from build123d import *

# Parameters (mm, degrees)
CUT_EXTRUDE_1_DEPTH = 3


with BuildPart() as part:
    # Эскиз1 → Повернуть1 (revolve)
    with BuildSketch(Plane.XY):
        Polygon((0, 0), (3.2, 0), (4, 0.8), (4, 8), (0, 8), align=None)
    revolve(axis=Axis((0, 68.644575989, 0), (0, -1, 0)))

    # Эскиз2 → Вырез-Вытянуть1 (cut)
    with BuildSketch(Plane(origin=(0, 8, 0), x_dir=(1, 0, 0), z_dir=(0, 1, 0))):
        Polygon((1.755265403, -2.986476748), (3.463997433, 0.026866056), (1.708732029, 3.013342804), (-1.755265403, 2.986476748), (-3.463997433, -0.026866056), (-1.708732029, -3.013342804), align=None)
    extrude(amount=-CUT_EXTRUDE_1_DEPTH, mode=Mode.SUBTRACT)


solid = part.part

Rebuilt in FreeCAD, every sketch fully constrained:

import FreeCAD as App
import Part
import Sketcher
from FreeCAD import Vector
Q = App.Units.Quantity

doc = App.newDocument("Part")
body = doc.addObject("PartDesign::Body", "Body")

sketch1 = body.newObject("Sketcher::SketchObject", "Sketch")
sketch1.AttachmentSupport = (doc.getObject("XY_Plane"), [""])
sketch1.MapMode = "FlatFace"
sketch1.addGeometry(Part.LineSegment(Vector(0, 0, 0), Vector(3.2, 0, 0)), False)
sketch1.addGeometry(Part.LineSegment(Vector(3.2, 0, 0), Vector(4, 0.8, 0)), False)
sketch1.addGeometry(Part.LineSegment(Vector(4, 0.8, 0), Vector(4, 8, 0)), False)
sketch1.addGeometry(Part.LineSegment(Vector(4, 8, 0), Vector(0, 8, 0)), False)
sketch1.addGeometry(Part.LineSegment(Vector(0, 8, 0), Vector(0, 0, 0)), False)
sketch1.addConstraint(Sketcher.Constraint("Coincident", 0, 2, 1, 1))
sketch1.addConstraint(Sketcher.Constraint("Coincident", 1, 2, 2, 1))
sketch1.addConstraint(Sketcher.Constraint("Coincident", 2, 2, 3, 1))
sketch1.addConstraint(Sketcher.Constraint("Coincident", 3, 2, 4, 1))
sketch1.addConstraint(Sketcher.Constraint("Coincident", 4, 2, 0, 1))
sketch1.addConstraint(Sketcher.Constraint("Horizontal", 0))
sketch1.addConstraint(Sketcher.Constraint("Vertical", 2))
sketch1.addConstraint(Sketcher.Constraint("Horizontal", 3))
sketch1.addConstraint(Sketcher.Constraint("Vertical", 4))
sketch1.addConstraint(Sketcher.Constraint("Coincident", 4, 2, -1, 1))
sketch1.addConstraint(Sketcher.Constraint("DistanceX", 3, 2, 3, 1, Q("4 mm")))
sketch1.addConstraint(Sketcher.Constraint("DistanceY", 4, 2, 4, 1, Q("8 mm")))
sketch1.addConstraint(Sketcher.Constraint("Angle", 1, Q("45 deg")))
sketch1.addConstraint(Sketcher.Constraint("DistanceX", 0, 1, 0, 2, Q("3.2 mm")))
revolution = body.newObject("PartDesign::Revolution", "Revolution")
revolution.Profile = sketch1
revolution.ReferenceAxis = (sketch1, ["V_Axis"])
revolution.Angle = 360

sketch2 = body.newObject("Sketcher::SketchObject", "Sketch001")
sketch2.AttachmentSupport = (doc.getObject("XZ_Plane"), [""])
sketch2.MapMode = "FlatFace"
sketch2.AttachmentOffset = App.Placement(Vector(0, 0, -8), App.Rotation())
sketch2.addGeometry(Part.LineSegment(Vector(1.8, 3, 0), Vector(3.5, 0, 0)), False)
sketch2.addGeometry(Part.LineSegment(Vector(3.5, 0, 0), Vector(1.7, -3, 0)), False)
sketch2.addGeometry(Part.LineSegment(Vector(1.7, -3, 0), Vector(-1.8, -3, 0)), False)
sketch2.addGeometry(Part.LineSegment(Vector(-1.8, -3, 0), Vector(-3.5, 0, 0)), False)
sketch2.addGeometry(Part.LineSegment(Vector(-3.5, 0, 0), Vector(-1.7, 3, 0)), False)
sketch2.addGeometry(Part.LineSegment(Vector(-1.7, 3, 0), Vector(1.8, 3, 0)), False)
sketch2.addConstraint(Sketcher.Constraint("Coincident", 0, 2, 1, 1))
sketch2.addConstraint(Sketcher.Constraint("Coincident", 1, 2, 2, 1))
sketch2.addConstraint(Sketcher.Constraint("Coincident", 2, 2, 3, 1))
sketch2.addConstraint(Sketcher.Constraint("Coincident", 3, 2, 4, 1))
sketch2.addConstraint(Sketcher.Constraint("Coincident", 4, 2, 5, 1))
sketch2.addConstraint(Sketcher.Constraint("Coincident", 5, 2, 0, 1))
sketch2.addConstraint(Sketcher.Constraint("Symmetric", 0, 2, 3, 2, -1, 1))
sketch2.addConstraint(Sketcher.Constraint("Symmetric", 1, 2, 4, 2, -1, 1))
sketch2.addConstraint(Sketcher.Constraint("Symmetric", 2, 2, 5, 2, -1, 1))
sketch2.addConstraint(Sketcher.Constraint("Equal", 0, 1))
sketch2.addConstraint(Sketcher.Constraint("Equal", 1, 2))
sketch2.addConstraint(Sketcher.Constraint("Distance", 0, Q("3.464102 mm")))
sketch2.addConstraint(Sketcher.Constraint("DistanceY", 2, 2, 0, 2, Q("2.959611 mm")))
sketch2.addConstraint(Sketcher.Constraint("DistanceX", 3, 2, 1, 2, Q("5.172729 mm")))
sketch2.addConstraint(Sketcher.Constraint("DistanceY", 1, 2, 3, 2, Q("3.040209 mm")))
pocket1 = body.newObject("PartDesign::Pocket", "Pocket")
pocket1.Profile = sketch2
pocket1.Length = 3
pocket1.Reversed = True

doc.recompute()
